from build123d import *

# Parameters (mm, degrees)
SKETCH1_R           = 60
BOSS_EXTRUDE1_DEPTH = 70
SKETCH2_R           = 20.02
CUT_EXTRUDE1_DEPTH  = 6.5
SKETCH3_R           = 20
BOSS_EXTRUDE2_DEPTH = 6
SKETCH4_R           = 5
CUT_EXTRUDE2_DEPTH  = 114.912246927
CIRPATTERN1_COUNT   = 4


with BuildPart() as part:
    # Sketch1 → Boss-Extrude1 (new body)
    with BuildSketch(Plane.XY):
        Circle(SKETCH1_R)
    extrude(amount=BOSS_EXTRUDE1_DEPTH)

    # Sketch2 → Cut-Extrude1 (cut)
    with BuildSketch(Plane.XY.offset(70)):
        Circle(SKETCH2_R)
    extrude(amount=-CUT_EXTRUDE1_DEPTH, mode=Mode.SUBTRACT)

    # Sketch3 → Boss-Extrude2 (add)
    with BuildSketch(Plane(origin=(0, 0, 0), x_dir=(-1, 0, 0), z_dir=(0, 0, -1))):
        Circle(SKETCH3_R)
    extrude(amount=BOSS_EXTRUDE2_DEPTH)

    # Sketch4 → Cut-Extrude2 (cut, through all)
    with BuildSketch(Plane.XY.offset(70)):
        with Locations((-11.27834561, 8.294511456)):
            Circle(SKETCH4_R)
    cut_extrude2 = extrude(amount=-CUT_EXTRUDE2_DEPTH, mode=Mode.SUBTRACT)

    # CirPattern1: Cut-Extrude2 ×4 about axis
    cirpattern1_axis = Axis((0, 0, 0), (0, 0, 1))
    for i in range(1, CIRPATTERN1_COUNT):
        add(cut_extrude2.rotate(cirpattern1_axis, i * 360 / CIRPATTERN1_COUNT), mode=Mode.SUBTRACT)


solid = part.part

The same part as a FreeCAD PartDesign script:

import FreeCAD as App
import Part
import Sketcher

V = App.Vector
Q = App.Units.Quantity

doc = App.newDocument("Part")
body = doc.addObject("PartDesign::Body", "Body")

# Sketch on XY plane
sketch1 = body.newObject("Sketcher::SketchObject", "Sketch")
sketch1.AttachmentSupport = (doc.getObject("XY_Plane"), [""])
sketch1.MapMode = "FlatFace"
sketch1.addGeometry(Part.Circle(V(0, 0, 0), V(0, 0, 1), 60), False)
sketch1.addConstraint([
    Sketcher.Constraint("Coincident", 0, 3, -1, 1),
    Sketcher.Constraint("Diameter", 0, Q("120 mm")),
])
pad1 = body.newObject("PartDesign::Pad", "Pad")
pad1.Profile = sketch1
pad1.Length = 70

# Sketch on XY plane
sketch2 = body.newObject("Sketcher::SketchObject", "Sketch001")
sketch2.AttachmentSupport = (doc.getObject("XY_Plane"), [""])
sketch2.MapMode = "FlatFace"
sketch2.AttachmentOffset = App.Placement(V(0, 0, 70), App.Rotation())
sketch2.addGeometry(Part.Circle(V(0, 0, 0), V(0, 0, 1), 20.02), False)
sketch2.addConstraint([
    Sketcher.Constraint("Coincident", 0, 3, -1, 1),
    Sketcher.Constraint("Diameter", 0, Q("40.04 mm")),
])
pocket1 = body.newObject("PartDesign::Pocket", "Pocket")
pocket1.Profile = sketch2
pocket1.Length = 6.5

# Sketch on XY plane
sketch3 = body.newObject("Sketcher::SketchObject", "Sketch002")
sketch3.AttachmentSupport = (doc.getObject("XY_Plane"), [""])
sketch3.MapMode = "FlatFace"
sketch3.addGeometry(Part.Circle(V(0, 0, 0), V(0, 0, 1), 20), False)
sketch3.addConstraint([
    Sketcher.Constraint("Coincident", 0, 3, -1, 1),
    Sketcher.Constraint("Diameter", 0, Q("40 mm")),
])
pad2 = body.newObject("PartDesign::Pad", "Pad001")
pad2.Profile = sketch3
pad2.Length = 6
pad2.Reversed = True

# Sketch on XY plane
sketch4 = body.newObject("Sketcher::SketchObject", "Sketch003")
sketch4.AttachmentSupport = (doc.getObject("XY_Plane"), [""])
sketch4.MapMode = "FlatFace"
sketch4.AttachmentOffset = App.Placement(V(0, 0, 70), App.Rotation())
sketch4.addGeometry(Part.Circle(V(-11.278346, 8.294511, 0), V(0, 0, 1), 5), False)
sketch4.addConstraint([
    Sketcher.Constraint("Diameter", 0, Q("10 mm")),
    Sketcher.Constraint("DistanceY", -1, 1, 0, 3, Q("8.294511 mm")),
    Sketcher.Constraint("DistanceX", 0, 3, -1, 1, Q("11.278346 mm")),
])
pocket2 = body.newObject("PartDesign::Pocket", "Pocket001")
pocket2.Profile = sketch4
pocket2.Type = "ThroughAll"
doc.recompute()

polarpattern = body.newObject("PartDesign::PolarPattern", "PolarPattern")
polarpattern.Originals = [pocket2]
polarpattern.Axis = (doc.getObject("Z_Axis"), [""])
polarpattern.Angle = 360
polarpattern.Occurrences = 4
body.Tip = polarpattern

doc.recompute()
